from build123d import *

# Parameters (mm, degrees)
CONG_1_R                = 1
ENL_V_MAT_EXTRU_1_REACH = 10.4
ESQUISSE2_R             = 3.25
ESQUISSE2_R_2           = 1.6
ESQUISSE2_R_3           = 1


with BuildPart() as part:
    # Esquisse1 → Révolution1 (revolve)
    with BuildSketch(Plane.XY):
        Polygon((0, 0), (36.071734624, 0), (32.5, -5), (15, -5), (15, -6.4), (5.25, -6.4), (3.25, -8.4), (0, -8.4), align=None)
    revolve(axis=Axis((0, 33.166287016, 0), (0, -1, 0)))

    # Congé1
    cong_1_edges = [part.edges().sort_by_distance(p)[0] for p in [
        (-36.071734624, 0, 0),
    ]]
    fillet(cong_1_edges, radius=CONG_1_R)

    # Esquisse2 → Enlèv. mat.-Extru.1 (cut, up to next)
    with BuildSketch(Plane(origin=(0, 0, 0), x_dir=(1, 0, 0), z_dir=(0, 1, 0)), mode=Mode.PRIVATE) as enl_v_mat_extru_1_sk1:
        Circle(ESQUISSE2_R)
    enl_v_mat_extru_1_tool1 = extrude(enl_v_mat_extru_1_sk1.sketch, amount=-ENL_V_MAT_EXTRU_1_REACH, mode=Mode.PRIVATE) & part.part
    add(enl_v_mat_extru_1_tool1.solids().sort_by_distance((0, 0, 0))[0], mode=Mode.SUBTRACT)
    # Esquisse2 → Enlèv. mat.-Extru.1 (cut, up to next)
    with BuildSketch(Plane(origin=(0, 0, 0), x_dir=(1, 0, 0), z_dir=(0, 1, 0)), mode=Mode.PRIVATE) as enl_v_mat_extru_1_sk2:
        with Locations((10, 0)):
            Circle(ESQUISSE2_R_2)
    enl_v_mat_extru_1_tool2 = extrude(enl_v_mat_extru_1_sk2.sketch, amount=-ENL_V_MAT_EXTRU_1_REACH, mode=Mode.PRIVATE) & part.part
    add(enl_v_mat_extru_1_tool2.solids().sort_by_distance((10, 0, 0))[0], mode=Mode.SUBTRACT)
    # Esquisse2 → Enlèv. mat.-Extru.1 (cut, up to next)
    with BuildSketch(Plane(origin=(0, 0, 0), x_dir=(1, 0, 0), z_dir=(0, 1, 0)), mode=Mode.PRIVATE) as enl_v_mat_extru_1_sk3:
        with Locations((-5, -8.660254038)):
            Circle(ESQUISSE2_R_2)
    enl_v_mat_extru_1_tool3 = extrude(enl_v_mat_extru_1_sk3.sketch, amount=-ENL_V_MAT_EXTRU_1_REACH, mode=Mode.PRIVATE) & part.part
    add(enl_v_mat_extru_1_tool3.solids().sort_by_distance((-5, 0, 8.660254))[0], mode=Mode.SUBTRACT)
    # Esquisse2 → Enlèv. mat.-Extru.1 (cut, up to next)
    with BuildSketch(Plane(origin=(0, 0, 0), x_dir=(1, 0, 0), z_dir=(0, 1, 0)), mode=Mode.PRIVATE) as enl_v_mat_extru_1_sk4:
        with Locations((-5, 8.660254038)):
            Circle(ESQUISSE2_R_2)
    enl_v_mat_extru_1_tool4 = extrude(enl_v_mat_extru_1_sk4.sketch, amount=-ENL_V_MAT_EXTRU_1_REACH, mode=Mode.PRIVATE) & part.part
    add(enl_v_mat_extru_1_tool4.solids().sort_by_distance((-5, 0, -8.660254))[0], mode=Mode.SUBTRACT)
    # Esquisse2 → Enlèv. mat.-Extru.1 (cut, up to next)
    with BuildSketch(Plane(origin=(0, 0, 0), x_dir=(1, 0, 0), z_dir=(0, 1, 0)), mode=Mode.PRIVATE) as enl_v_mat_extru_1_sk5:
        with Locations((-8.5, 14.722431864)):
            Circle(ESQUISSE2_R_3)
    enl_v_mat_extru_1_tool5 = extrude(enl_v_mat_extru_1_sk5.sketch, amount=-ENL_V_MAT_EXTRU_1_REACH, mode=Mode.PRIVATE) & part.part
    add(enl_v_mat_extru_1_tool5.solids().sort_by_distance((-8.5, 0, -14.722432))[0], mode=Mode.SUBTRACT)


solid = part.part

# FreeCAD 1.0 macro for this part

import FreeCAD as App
import Part
import Sketcher
from FreeCAD import Vector
Q = App.Units.Quantity


def edges_at(feature, points):
    """Names of the edges that pass closest to the given points."""
    edges = feature.Shape.Edges
    near = lambda p: min(range(len(edges)), key=lambda i: edges[i].distToShape(Part.Vertex(*p))[0])
    return sorted({f"Edge{near(p) + 1}" for p in points})


def add_polygon(sketch, points):
    """Adds a closed chain of lines whose ends are joined by coincident constraints."""
    first, n = sketch.GeometryCount, len(points)
    for a, b in zip(points, points[1:] + points[:1]):
        sketch.addGeometry(Part.LineSegment(App.Vector(*a, 0), App.Vector(*b, 0)), False)
    for i in range(n):
        sketch.addConstraint(Sketcher.Constraint("Coincident", first + i, 2, first + (i + 1) % n, 1))

doc = App.newDocument("Part")
params = doc.addObject("Spreadsheet::Sheet", "Params")
for row, (alias, value) in enumerate([
    ("sketch1_width", "17.5 mm"),
    ("sketch1_height", "8.4 mm"),
    ("sketch1_height2", "1.4 mm"),
    ("sketch1_width2", "3.25 mm"),
    ("revolution_angle", "360 deg"),
    ("fillet_radius", "1 mm"),
    ("sketch2_diameter", "6.5 mm"),
    ("sketch3_diameter", "3.2 mm"),
    ("sketch4_diameter", "3.2 mm"),
    ("sketch5_diameter", "3.2 mm"),
    ("sketch6_diameter", "2 mm"),
], start=1):
    params.set(f"A{row}", alias)
    params.set(f"B{row}", "=" + value)
    params.setAlias(f"B{row}", alias)

body = doc.addObject("PartDesign::Body", "Body")

# Sketch on XY plane
sketch1 = body.newObject("Sketcher::SketchObject", "Sketch")
sketch1.AttachmentSupport = (doc.getObject("XY_Plane"), [""])
sketch1.MapMode = "FlatFace"
add_polygon(sketch1, [(36.1, 0), (0, 0), (0, -8.4), (3.2, -8.4), (5.2, -6.4), (15, -6.4), (15, -5), (32.5, -5)])  # lines 0-7
sketch1.addConstraint(Sketcher.Constraint("Horizontal", 0))
sketch1.addConstraint(Sketcher.Constraint("Vertical", 1))
sketch1.addConstraint(Sketcher.Constraint("Horizontal", 2))
sketch1.addConstraint(Sketcher.Constraint("Horizontal", 4))
sketch1.addConstraint(Sketcher.Constraint("Vertical", 5))
sketch1.addConstraint(Sketcher.Constraint("Horizontal", 6))
sketch1.addConstraint(Sketcher.Constraint("Coincident", 0, 2, -1, 1))
sketch1.addConstraint(Sketcher.Constraint("Angle", 3, Q("45 deg")))
sketch1.addConstraint(Sketcher.Constraint("DistanceX", 6, 1, 6, 2, Q("17.5 mm")))
sketch1.addConstraint(Sketcher.Constraint("DistanceY", 1, 2, 1, 1, Q("8.4 mm")))
sketch1.addConstraint(Sketcher.Constraint("DistanceY", 5, 1, 5, 2, Q("1.4 mm")))
sketch1.addConstraint(Sketcher.Constraint("DistanceX", -1, 1, 4, 2, Q("15 mm")))
sketch1.addConstraint(Sketcher.Constraint("DistanceY", 5, 2, -1, 1, Q("5 mm")))
sketch1.addConstraint(Sketcher.Constraint("DistanceX", 2, 1, 2, 2, Q("3.25 mm")))
sketch1.addConstraint(Sketcher.Constraint("Angle", 7, Q("54.46 deg")))
sketch1.setExpression("Constraints[16]", "Params.sketch1_width")
sketch1.setExpression("Constraints[17]", "Params.sketch1_height")
sketch1.setExpression("Constraints[18]", "Params.sketch1_height2")
sketch1.setExpression("Constraints[21]", "Params.sketch1_width2")
revolution = body.newObject("PartDesign::Revolution", "Revolution")
revolution.Profile = sketch1
revolution.ReferenceAxis = (sketch1, ["V_Axis"])
revolution.setExpression("Angle", "Params.revolution_angle")
doc.recompute()

fillet = body.newObject("PartDesign::Fillet", "Fillet")
fillet.Base = (revolution, edges_at(revolution, [(-36.072, 0, 0)]))
fillet.setExpression("Radius", "Params.fillet_radius")

# Sketch on XZ plane
sketch2 = body.newObject("Sketcher::SketchObject", "Sketch001")
sketch2.AttachmentSupport = (doc.getObject("XZ_Plane"), [""])
sketch2.MapMode = "FlatFace"
sketch2.addGeometry(Part.Circle(Vector(0, 0, 0), Vector(0, 0, 1), 3.2), False)
sketch2.addConstraint(Sketcher.Constraint("Coincident", 0, 3, -1, 1))
sketch2.addConstraint(Sketcher.Constraint("Diameter", 0, Q("6.5 mm")))
sketch2.setExpression("Constraints[1]", "Params.sketch2_diameter")
pocket1 = body.newObject("PartDesign::Pocket", "Pocket")
pocket1.Profile = sketch2
pocket1.Type = "UpToFirst"
pocket1.Reversed = True

# Sketch on XZ plane
sketch3 = body.newObject("Sketcher::SketchObject", "Sketch002")
sketch3.AttachmentSupport = (doc.getObject("XZ_Plane"), [""])
sketch3.MapMode = "FlatFace"
sketch3.addGeometry(Part.Circle(Vector(10, 0, 0), Vector(0, 0, 1), 1.6), False)
sketch3.addConstraint(Sketcher.Constraint("PointOnObject", 0, 3, -1))
sketch3.addConstraint(Sketcher.Constraint("Diameter", 0, Q("3.2 mm")))
sketch3.addConstraint(Sketcher.Constraint("DistanceX", -1, 1, 0, 3, Q("10 mm")))
sketch3.setExpression("Constraints[1]", "Params.sketch3_diameter")
pocket2 = body.newObject("PartDesign::Pocket", "Pocket001")
pocket2.Profile = sketch3
pocket2.Type = "UpToFirst"
pocket2.Reversed = True

# Sketch on XZ plane
sketch4 = body.newObject("Sketcher::SketchObject", "Sketch003")
sketch4.AttachmentSupport = (doc.getObject("XZ_Plane"), [""])
sketch4.MapMode = "FlatFace"
sketch4.addGeometry(Part.Circle(Vector(-5, 8.7, 0), Vector(0, 0, 1), 1.6), False)
sketch4.addConstraint(Sketcher.Constraint("Diameter", 0, Q("3.2 mm")))
sketch4.addConstraint(Sketcher.Constraint("DistanceX", 0, 3, -1, 1, Q("5 mm")))
sketch4.addConstraint(Sketcher.Constraint("DistanceY", -1, 1, 0, 3, Q("8.660254 mm")))
sketch4.setExpression("Constraints[0]", "Params.sketch4_diameter")
pocket3 = body.newObject("PartDesign::Pocket", "Pocket002")
pocket3.Profile = sketch4
pocket3.Type = "UpToFirst"
pocket3.Reversed = True

# Sketch on XZ plane
sketch5 = body.newObject("Sketcher::SketchObject", "Sketch004")
sketch5.AttachmentSupport = (doc.getObject("XZ_Plane"), [""])
sketch5.MapMode = "FlatFace"
sketch5.addGeometry(Part.Circle(Vector(-5, -8.7, 0), Vector(0, 0, 1), 1.6), False)
sketch5.addConstraint(Sketcher.Constraint("Diameter", 0, Q("3.2 mm")))
sketch5.addConstraint(Sketcher.Constraint("DistanceX", 0, 3, -1, 1, Q("5 mm")))
sketch5.addConstraint(Sketcher.Constraint("DistanceY", 0, 3, -1, 1, Q("8.660254 mm")))
sketch5.setExpression("Constraints[0]", "Params.sketch5_diameter")
pocket4 = body.newObject("PartDesign::Pocket", "Pocket003")
pocket4.Profile = sketch5
pocket4.Type = "UpToFirst"
pocket4.Reversed = True

# Sketch on XZ plane
sketch6 = body.newObject("Sketcher::SketchObject", "Sketch005")
sketch6.AttachmentSupport = (doc.getObject("XZ_Plane"), [""])
sketch6.MapMode = "FlatFace"
sketch6.addGeometry(Part.Circle(Vector(-8.5, -14.7, 0), Vector(0, 0, 1), 1), False)
sketch6.addConstraint(Sketcher.Constraint("Diameter", 0, Q("2 mm")))
sketch6.addConstraint(Sketcher.Constraint("DistanceX", 0, 3, -1, 1, Q("8.5 mm")))
sketch6.addConstraint(Sketcher.Constraint("DistanceY", 0, 3, -1, 1, Q("14.722432 mm")))
sketch6.setExpression("Constraints[0]", "Params.sketch6_diameter")
pocket5 = body.newObject("PartDesign::Pocket", "Pocket004")
pocket5.Profile = sketch6
pocket5.Type = "UpToFirst"
pocket5.Reversed = True

doc.recompute()
